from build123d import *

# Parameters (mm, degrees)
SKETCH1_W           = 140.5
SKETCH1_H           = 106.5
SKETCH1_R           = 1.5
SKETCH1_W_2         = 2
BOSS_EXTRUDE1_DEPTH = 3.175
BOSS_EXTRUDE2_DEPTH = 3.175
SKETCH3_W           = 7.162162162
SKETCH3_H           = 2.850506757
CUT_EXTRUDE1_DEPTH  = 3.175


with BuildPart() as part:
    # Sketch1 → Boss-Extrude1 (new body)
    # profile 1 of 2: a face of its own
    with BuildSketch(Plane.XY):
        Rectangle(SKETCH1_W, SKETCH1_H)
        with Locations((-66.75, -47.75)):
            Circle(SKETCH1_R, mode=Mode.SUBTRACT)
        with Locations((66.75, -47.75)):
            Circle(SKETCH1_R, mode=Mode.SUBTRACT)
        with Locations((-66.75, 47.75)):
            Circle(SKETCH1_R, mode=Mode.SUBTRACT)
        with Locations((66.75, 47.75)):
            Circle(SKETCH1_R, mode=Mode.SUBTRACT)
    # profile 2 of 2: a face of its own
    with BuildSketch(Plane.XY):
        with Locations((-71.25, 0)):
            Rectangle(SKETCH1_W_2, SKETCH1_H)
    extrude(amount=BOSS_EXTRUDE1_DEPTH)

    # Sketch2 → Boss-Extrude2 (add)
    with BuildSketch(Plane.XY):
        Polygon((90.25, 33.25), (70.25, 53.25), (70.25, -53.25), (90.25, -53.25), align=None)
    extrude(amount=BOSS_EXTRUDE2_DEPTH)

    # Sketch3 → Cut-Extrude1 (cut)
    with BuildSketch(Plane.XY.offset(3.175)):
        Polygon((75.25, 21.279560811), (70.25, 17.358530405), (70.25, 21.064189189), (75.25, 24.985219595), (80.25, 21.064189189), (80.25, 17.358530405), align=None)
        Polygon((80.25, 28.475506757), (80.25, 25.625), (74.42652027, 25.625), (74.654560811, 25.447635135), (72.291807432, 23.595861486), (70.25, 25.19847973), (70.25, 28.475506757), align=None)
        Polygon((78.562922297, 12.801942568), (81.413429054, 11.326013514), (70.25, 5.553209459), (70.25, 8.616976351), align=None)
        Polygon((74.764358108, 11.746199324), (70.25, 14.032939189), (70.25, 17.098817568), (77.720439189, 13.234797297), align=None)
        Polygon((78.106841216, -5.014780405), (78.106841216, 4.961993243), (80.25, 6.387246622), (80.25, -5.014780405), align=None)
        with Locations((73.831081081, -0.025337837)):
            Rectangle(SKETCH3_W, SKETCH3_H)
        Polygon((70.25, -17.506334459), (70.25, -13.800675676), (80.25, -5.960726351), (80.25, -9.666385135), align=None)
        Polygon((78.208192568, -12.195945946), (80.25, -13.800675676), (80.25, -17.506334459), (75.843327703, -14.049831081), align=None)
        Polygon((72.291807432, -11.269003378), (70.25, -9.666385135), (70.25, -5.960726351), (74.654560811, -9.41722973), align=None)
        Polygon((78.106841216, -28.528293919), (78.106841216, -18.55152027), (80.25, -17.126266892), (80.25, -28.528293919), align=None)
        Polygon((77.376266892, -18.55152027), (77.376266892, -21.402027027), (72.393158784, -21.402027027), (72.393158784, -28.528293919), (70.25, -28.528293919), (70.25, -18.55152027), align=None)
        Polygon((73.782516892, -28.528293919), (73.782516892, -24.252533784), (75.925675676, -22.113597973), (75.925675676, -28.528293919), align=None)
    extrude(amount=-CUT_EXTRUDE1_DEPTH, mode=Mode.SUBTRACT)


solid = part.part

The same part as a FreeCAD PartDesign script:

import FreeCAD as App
import Part
import Sketcher
from FreeCAD import Vector
Q = App.Units.Quantity


def add_polygon(sketch, points):
    """Adds a closed chain of lines whose ends are joined by coincident constraints."""
    first, n = sketch.GeometryCount, len(points)
    for a, b in zip(points, points[1:] + points[:1]):
        sketch.addGeometry(Part.LineSegment(App.Vector(*a, 0), App.Vector(*b, 0)), False)
    for i in range(n):
        sketch.addConstraint(Sketcher.Constraint("Coincident", first + i, 2, first + (i + 1) % n, 1))

doc = App.newDocument("Part")
params = doc.addObject("Spreadsheet::Sheet", "Params")
for row, (alias, value) in enumerate([
    ("sketch1_diameter", "3 mm"),
    ("sketch1_width", "142.5 mm"),
    ("sketch1_height", "106.5 mm"),
    ("pad1_length", "3.175 mm"),
    ("sketch2_width", "20 mm"),
    ("sketch2_height", "106.5 mm"),
    ("pad2_length", "3.175 mm"),
    ("sketch3_width", "10 mm"),
    ("pocket1_length", "3.175 mm"),
], start=1):
    params.set(f"A{row}", alias)
    params.set(f"B{row}", "=" + value)
    params.setAlias(f"B{row}", alias)

body = doc.addObject("PartDesign::Body", "Body")

# Sketch on XY plane
sketch1 = body.newObject("Sketcher::SketchObject", "Sketch")
sketch1.AttachmentSupport = (doc.getObject("XY_Plane"), [""])
sketch1.MapMode = "FlatFace"
add_polygon(sketch1, [(70.2, -53.2), (70.2, 53.2), (-72.2, 53.2), (-72.2, -53.2)])  # lines 0-3
sketch1.addGeometry(Part.Circle(Vector(-66.8, -47.8, 0), Vector(0, 0, 1), 1.5), False)  # 4
sketch1.addGeometry(Part.Circle(Vector(66.8, -47.8, 0), Vector(0, 0, 1), 1.5), False)  # 5
sketch1.addGeometry(Part.Circle(Vector(-66.8, 47.8, 0), Vector(0, 0, 1), 1.5), False)  # 6
sketch1.addGeometry(Part.Circle(Vector(66.8, 47.8, 0), Vector(0, 0, 1), 1.5), False)  # 7
sketch1.addConstraint([
    Sketcher.Constraint("Vertical", 0),
    Sketcher.Constraint("Horizontal", 1),
    Sketcher.Constraint("Vertical", 2),
    Sketcher.Constraint("Horizontal", 3),
    Sketcher.Constraint("Equal", 4, 5),
    Sketcher.Constraint("Equal", 5, 6),
    Sketcher.Constraint("Equal", 6, 7),
    Sketcher.Constraint("Symmetric", 5, 3, 6, 3, -1, 1),
    Sketcher.Constraint("Symmetric", 4, 3, 7, 3, -1, 1),
    Sketcher.Constraint("Symmetric", 4, 3, 5, 3, -2),
    Sketcher.Constraint("Diameter", 4, 3.0),
    Sketcher.Constraint("DistanceX", 1, 2, 1, 1, 142.5),
    Sketcher.Constraint("DistanceY", 0, 1, 0, 2, 106.5),
    Sketcher.Constraint("DistanceY", 5, 3, 0, 2, 101.0),
    Sketcher.Constraint("DistanceX", 6, 3, 0, 2, 137.0),
    Sketcher.Constraint("DistanceX", 1, 2, 7, 3, 139.0),
    Sketcher.Constraint("DistanceY", 2, 2, 6, 3, 101.0),
])
sketch1.setExpression("Constraints[14]", "Params.sketch1_diameter")
sketch1.setExpression("Constraints[15]", "Params.sketch1_width")
sketch1.setExpression("Constraints[16]", "Params.sketch1_height")
pad1 = body.newObject("PartDesign::Pad", "Pad")
pad1.Profile = sketch1
pad1.setExpression("Length", "Params.pad1_length")

# Sketch on XY plane
sketch2 = body.newObject("Sketcher::SketchObject", "Sketch001")
sketch2.AttachmentSupport = (doc.getObject("XY_Plane"), [""])
sketch2.MapMode = "FlatFace"
add_polygon(sketch2, [(90, 33), (70, 53), (70, -53), (90, -53)])  # lines 0-3
sketch2.addConstraint([
    Sketcher.Constraint("Vertical", 1),
    Sketcher.Constraint("Horizontal", 2),
    Sketcher.Constraint("Vertical", 3),
    Sketcher.Constraint("DistanceX", 2, 1, 2, 2, 20.0),
    Sketcher.Constraint("Angle", 0, Q("135 deg")),
    Sketcher.Constraint("DistanceY", 1, 2, 1, 1, 106.5),
    Sketcher.Constraint("DistanceX", -1, 1, 0, 2, 70.25),
    Sketcher.Constraint("DistanceY", -1, 1, 0, 2, 53.25),
])
sketch2.setExpression("Constraints[7]", "Params.sketch2_width")
sketch2.setExpression("Constraints[9]", "Params.sketch2_height")
pad2 = body.newObject("PartDesign::Pad", "Pad001")
pad2.Profile = sketch2
pad2.setExpression("Length", "Params.pad2_length")

# Sketch on XY plane
sketch3 = body.newObject("Sketcher::SketchObject", "Sketch002")
sketch3.AttachmentSupport = (doc.getObject("XY_Plane"), [""])
sketch3.MapMode = "FlatFace"
sketch3.AttachmentOffset = App.Placement(Vector(0, 0, 3.175), App.Rotation())
add_polygon(sketch3, [(70.25, 17.36), (75.25, 21.28), (80.25, 17.36), (80.25, 21.06), (75.25, 24.99), (70.25, 21.06)])  # lines 0-5
add_polygon(sketch3, [(80.25, 25.62), (80.25, 28.48), (70.25, 28.48), (70.25, 25.2), (72.29, 23.6), (74.65, 25.45), (74.43, 25.62)])  # lines 6-12
add_polygon(sketch3, [(81.41, 11.33), (78.56, 12.8), (70.25, 8.62), (70.25, 5.55)])  # lines 13-16
add_polygon(sketch3, [(70.25, 14.03), (74.76, 11.75), (77.72, 13.23), (70.25, 17.1)])  # lines 17-20
add_polygon(sketch3, [(78.11, 4.96), (78.11, -5.01), (80.25, -5.01), (80.25, 6.39)])  # lines 21-24
add_polygon(sketch3, [(70.25, 1.4), (70.25, -1.45), (77.41, -1.45), (77.41, 1.4)])  # lines 25-28
add_polygon(sketch3, [(70.25, -13.8), (70.25, -17.51), (80.25, -9.67), (80.25, -5.96)])  # lines 29-32
add_polygon(sketch3, [(78.21, -12.2), (75.84, -14.05), (79.99, -17.3), (78.11, -18.55), (78.11, -28.53), (80.25, -28.53), (80.25, -13.8)])  # lines 33-39
add_polygon(sketch3, [(70.25, -9.67), (72.29, -11.27), (74.65, -9.42), (70.25, -5.96)])  # lines 40-43
add_polygon(sketch3, [(77.38, -21.4), (77.38, -18.55), (70.25, -18.55), (70.25, -28.53), (72.39, -28.53), (72.39, -21.4)])  # lines 44-49
add_polygon(sketch3, [(73.78, -24.25), (73.78, -28.53), (75.93, -28.53), (75.93, -22.11)])  # lines 50-53
sketch3.addConstraint([
    Sketcher.Constraint("Vertical", 2),
    Sketcher.Constraint("Vertical", 5),
    Sketcher.Constraint("Vertical", 6),
    Sketcher.Constraint("Horizontal", 7),
    Sketcher.Constraint("Vertical", 8),
    Sketcher.Constraint("Horizontal", 12),
    Sketcher.Constraint("Vertical", 15),
    Sketcher.Constraint("Vertical", 20),
    Sketcher.Constraint("Vertical", 21),
    Sketcher.Constraint("Horizontal", 22),
    Sketcher.Constraint("Vertical", 23),
    Sketcher.Constraint("Vertical", 25),
    Sketcher.Constraint("Horizontal", 26),
    Sketcher.Constraint("Vertical", 27),
    Sketcher.Constraint("Horizontal", 28),
    Sketcher.Constraint("Vertical", 29),
    Sketcher.Constraint("Vertical", 31),
    Sketcher.Constraint("Vertical", 36),
    Sketcher.Constraint("Horizontal", 37),
    Sketcher.Constraint("Vertical", 38),
    Sketcher.Constraint("Vertical", 43),
    Sketcher.Constraint("Vertical", 44),
    Sketcher.Constraint("Horizontal", 45),
    Sketcher.Constraint("Vertical", 46),
    Sketcher.Constraint("Horizontal", 47),
    Sketcher.Constraint("Vertical", 48),
    Sketcher.Constraint("Horizontal", 49),
    Sketcher.Constraint("Vertical", 50),
    Sketcher.Constraint("Horizontal", 51),
    Sketcher.Constraint("Vertical", 52),
    Sketcher.Constraint("Parallel", 1, 3),
    Sketcher.Constraint("Parallel", 0, 4),
    Sketcher.Constraint("Parallel", 30, 32),
    Sketcher.Constraint("Parallel", 24, 35),
    Sketcher.Constraint("Parallel", 9, 40),
    Sketcher.Constraint("Parallel", 10, 41),
    Sketcher.Constraint("Horizontal", 2, 2, 4, 2),
    Sketcher.Constraint("Horizontal", 1, 2, 5, 2),
    Sketcher.Constraint("Horizontal", 32, 2, 38, 2),
    Sketcher.Constraint("Horizontal", 31, 2, 42, 2),
    Sketcher.Constraint("Horizontal", 30, 2, 43, 2),
    Sketcher.Constraint("Horizontal", 35, 2, 44, 2),
    Sketcher.Constraint("Horizontal", 37, 2, 46, 2),
    Sketcher.Constraint("Horizontal", 47, 2, 50, 2),
    Sketcher.Constraint("Vertical", 2, 2, 6, 2),
    Sketcher.Constraint("Vertical", 5, 2, 7, 2),
    Sketcher.Constraint("Vertical", 8, 2, 14, 2),
    Sketcher.Constraint("Vertical", 15, 2, 19, 2),
    Sketcher.Constraint("Vertical", 12, 2, 22, 2),
    Sketcher.Constraint("Vertical", 20, 2, 25, 2),
    Sketcher.Constraint("Vertical", 28, 2, 29, 2),
    Sketcher.Constraint("Vertical", 23, 2, 30, 2),
    Sketcher.Constraint("Vertical", 24, 2, 35, 2),
    Sketcher.Constraint("Vertical", 31, 2, 37, 2),
    Sketcher.Constraint("Vertical", 9, 2, 40, 2),
    Sketcher.Constraint("Vertical", 10, 2, 41, 2),
    Sketcher.Constraint("Vertical", 32, 2, 42, 2),
    Sketcher.Constraint("Vertical", 43, 2, 45, 2),
    Sketcher.Constraint("Equal", 37, 47),
    Sketcher.Constraint("Equal", 47, 51),
    Sketcher.Constraint("Equal", 6, 25),
    Sketcher.Constraint("Equal", 5, 29),
    Sketcher.Constraint("Equal", 21, 36),
    Sketcher.Constraint("Equal", 27, 44),
    Sketcher.Constraint("Equal", 45, 48),
    Sketcher.Constraint("Equal", 0, 1),
    Sketcher.Constraint("DistanceX", 7, 2, 7, 1, 10.0),
    Sketcher.Constraint("DistanceX", -1, 1, 0, 2, 75.25),
    Sketcher.Constraint("DistanceY", -1, 1, 11, 2, 25.625),
    Sketcher.Constraint("Distance", 53, 3.0279),
    Sketcher.Constraint("DistanceX", 12, 1, 12, 2, 5.82348),
    Sketcher.Constraint("DistanceX", 22, 1, 22, 2, 2.143159),
    Sketcher.Constraint("DistanceX", 49, 1, 49, 2, 4.983108),
    Sketcher.Constraint("DistanceY", 2, 1, 2, 2, 3.705659),
    Sketcher.Constraint("DistanceY", 20, 2, 20, 1, 3.065878),
    Sketcher.Constraint("DistanceY", 38, 1, 38, 2, 14.727618),
    Sketcher.Constraint("DistanceY", 50, 2, 50, 1, 4.27576),
    Sketcher.Constraint("DistanceY", -1, 1, 17, 2, 11.746199),
    Sketcher.Constraint("DistanceY", 0, 2, 9, 2, 2.316301),
    Sketcher.Constraint("DistanceY", 25, 2, 15, 2, 7.003801),
    Sketcher.Constraint("DistanceY", 30, 2, 27, 2, 11.066301),
    Sketcher.Constraint("DistanceY", 33, 2, 41, 2, 4.632601),
    Sketcher.Constraint("DistanceX", 52, 2, 34, 2, 4.062101),
    Sketcher.Constraint("Distance", 0, 6.354092),
    Sketcher.Constraint("Distance", 30, 12.70688),
    Sketcher.Constraint("Distance", 33, 3.004909),
    Sketcher.Constraint("Distance", 35, 2.258891),
    Sketcher.Constraint("Distance", 42, 5.59889),
    Sketcher.Constraint("DistanceX", 26, 1, 26, 2, 7.162162),
    Sketcher.Constraint("DistanceY", 6, 1, 6, 2, 2.850507),
    Sketcher.Constraint("DistanceY", 8, 2, 8, 1, 3.277027),
    Sketcher.Constraint("DistanceY", 15, 2, 15, 1, 3.063767),
    Sketcher.Constraint("DistanceY", 23, 1, 23, 2, 11.402027),
    Sketcher.Constraint("DistanceY", -1, 1, 0, 2, 21.279561),
    Sketcher.Constraint("DistanceX", -1, 1, 10, 2, 74.654561),
    Sketcher.Constraint("DistanceY", -1, 1, 15, 2, 5.553209),
    Sketcher.Constraint("DistanceX", -1, 1, 16, 2, 81.413429),
    Sketcher.Constraint("DistanceX", -1, 1, 17, 2, 74.764358),
    Sketcher.Constraint("DistanceX", -1, 1, 18, 2, 77.720439),
    Sketcher.Constraint("DistanceY", -1, 1, 20, 2, 14.032939),
    Sketcher.Constraint("DistanceY", 21, 2, -1, 1, 5.01478),
    Sketcher.Constraint("DistanceY", 13, 2, 0, 2, 8.477618),
    Sketcher.Constraint("DistanceY", 16, 2, 13, 2, 1.475929),
    Sketcher.Constraint("DistanceY", 18, 2, 2, 2, 7.829392),
    Sketcher.Constraint("DistanceX", 21, 2, 13, 2, 0.456081),
    Sketcher.Constraint("DistanceX", 33, 2, 34, 2, 4.144449),
    Sketcher.Constraint("DistanceY", 38, 2, 39, 2, 1.60473),
    Sketcher.Constraint("DistanceX", 40, 2, 33, 2, 3.55152),
])
sketch3.setExpression("Constraints[120]", "Params.sketch3_width")
pocket1 = body.newObject("PartDesign::Pocket", "Pocket")
pocket1.Profile = sketch3
pocket1.setExpression("Length", "Params.pocket1_length")

doc.recompute()
